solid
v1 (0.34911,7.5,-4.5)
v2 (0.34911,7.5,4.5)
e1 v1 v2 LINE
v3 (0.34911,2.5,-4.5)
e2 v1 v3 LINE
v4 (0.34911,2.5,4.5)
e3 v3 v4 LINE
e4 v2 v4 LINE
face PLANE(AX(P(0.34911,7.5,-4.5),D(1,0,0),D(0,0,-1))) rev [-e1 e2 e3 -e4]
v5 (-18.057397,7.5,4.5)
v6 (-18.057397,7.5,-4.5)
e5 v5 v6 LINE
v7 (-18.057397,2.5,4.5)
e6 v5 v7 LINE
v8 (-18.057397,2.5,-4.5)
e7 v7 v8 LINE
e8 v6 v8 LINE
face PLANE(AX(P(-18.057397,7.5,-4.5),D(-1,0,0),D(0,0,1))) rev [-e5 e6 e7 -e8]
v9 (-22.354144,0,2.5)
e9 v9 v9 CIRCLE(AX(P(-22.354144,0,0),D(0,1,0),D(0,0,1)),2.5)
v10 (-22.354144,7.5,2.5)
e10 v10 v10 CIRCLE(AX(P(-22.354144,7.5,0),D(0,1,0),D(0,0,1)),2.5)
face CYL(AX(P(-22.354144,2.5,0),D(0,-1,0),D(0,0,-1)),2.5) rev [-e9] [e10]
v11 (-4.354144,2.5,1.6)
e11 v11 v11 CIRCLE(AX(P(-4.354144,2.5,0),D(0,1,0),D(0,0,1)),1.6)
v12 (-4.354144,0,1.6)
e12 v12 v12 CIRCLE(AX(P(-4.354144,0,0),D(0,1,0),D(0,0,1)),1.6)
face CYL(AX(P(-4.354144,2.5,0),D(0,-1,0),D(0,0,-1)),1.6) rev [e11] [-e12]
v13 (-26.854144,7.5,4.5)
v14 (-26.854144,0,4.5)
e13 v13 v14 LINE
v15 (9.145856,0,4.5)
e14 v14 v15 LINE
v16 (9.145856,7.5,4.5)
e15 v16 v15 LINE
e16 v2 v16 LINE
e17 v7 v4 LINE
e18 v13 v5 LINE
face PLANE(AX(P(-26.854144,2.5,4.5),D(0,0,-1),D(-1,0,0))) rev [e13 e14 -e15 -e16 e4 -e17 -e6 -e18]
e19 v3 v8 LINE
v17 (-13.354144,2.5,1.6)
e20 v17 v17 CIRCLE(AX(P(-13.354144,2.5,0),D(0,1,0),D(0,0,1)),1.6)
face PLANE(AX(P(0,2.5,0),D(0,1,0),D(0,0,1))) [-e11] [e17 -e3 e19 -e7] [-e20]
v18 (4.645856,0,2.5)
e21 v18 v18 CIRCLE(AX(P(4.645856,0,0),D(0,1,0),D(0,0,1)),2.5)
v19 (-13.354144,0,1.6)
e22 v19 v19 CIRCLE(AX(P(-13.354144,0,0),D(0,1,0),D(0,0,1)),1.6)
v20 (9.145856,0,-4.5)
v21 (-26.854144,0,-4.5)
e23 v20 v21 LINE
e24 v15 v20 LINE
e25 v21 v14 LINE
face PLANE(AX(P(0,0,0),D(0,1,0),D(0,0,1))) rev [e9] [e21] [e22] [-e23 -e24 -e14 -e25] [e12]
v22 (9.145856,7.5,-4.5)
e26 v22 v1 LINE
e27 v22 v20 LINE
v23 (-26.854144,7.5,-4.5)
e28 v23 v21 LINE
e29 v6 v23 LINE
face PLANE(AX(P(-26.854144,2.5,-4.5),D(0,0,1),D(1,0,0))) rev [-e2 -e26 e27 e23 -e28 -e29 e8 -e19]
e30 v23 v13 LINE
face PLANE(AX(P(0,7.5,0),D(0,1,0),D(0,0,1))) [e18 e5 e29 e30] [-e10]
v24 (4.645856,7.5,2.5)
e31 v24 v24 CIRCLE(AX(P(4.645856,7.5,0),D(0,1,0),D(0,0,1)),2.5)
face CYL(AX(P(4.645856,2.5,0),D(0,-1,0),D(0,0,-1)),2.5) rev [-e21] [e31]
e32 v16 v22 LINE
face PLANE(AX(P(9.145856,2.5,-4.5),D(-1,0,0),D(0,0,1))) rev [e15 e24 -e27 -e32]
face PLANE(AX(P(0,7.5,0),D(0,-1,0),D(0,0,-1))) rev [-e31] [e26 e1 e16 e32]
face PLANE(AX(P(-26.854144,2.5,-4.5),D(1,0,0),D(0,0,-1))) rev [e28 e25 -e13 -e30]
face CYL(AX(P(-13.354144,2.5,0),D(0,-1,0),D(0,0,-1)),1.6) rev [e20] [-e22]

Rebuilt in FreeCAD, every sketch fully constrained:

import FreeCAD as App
import Part
import Sketcher
from FreeCAD import Vector
Q = App.Units.Quantity

doc = App.newDocument("Part")
body = doc.addObject("PartDesign::Body", "Body")

# Sketch on XZ plane
sketch1 = body.newObject("Sketcher::SketchObject", "Sketch")
sketch1.AttachmentSupport = (doc.getObject("XZ_Plane"), [""])
sketch1.MapMode = "FlatFace"
sketch1.addGeometry(Part.LineSegment(Vector(-26.9, -4.5, 0), Vector(-26.9, 4.5, 0)), False)
sketch1.addGeometry(Part.LineSegment(Vector(-26.9, 4.5, 0), Vector(9.1, 4.5, 0)), False)
sketch1.addGeometry(Part.LineSegment(Vector(9.1, 4.5, 0), Vector(9.1, -4.5, 0)), False)
sketch1.addGeometry(Part.LineSegment(Vector(9.1, -4.5, 0), Vector(-26.9, -4.5, 0)), False)
sketch1.addGeometry(Part.Circle(Vector(-22.4, 0, 0), Vector(0, 0, 1), 2.5), False)
sketch1.addGeometry(Part.Circle(Vector(-13.4, 0, 0), Vector(0, 0, 1), 1.6), False)
sketch1.addGeometry(Part.Circle(Vector(-4.4, 0, 0), Vector(0, 0, 1), 1.6), False)
sketch1.addGeometry(Part.Circle(Vector(4.6, 0, 0), Vector(0, 0, 1), 2.5), False)
sketch1.addConstraint(Sketcher.Constraint("Coincident", 0, 2, 1, 1))
sketch1.addConstraint(Sketcher.Constraint("Coincident", 1, 2, 2, 1))
sketch1.addConstraint(Sketcher.Constraint("Coincident", 2, 2, 3, 1))
sketch1.addConstraint(Sketcher.Constraint("Coincident", 3, 2, 0, 1))
sketch1.addConstraint(Sketcher.Constraint("Vertical", 0))
sketch1.addConstraint(Sketcher.Constraint("Horizontal", 1))
sketch1.addConstraint(Sketcher.Constraint("Vertical", 2))
sketch1.addConstraint(Sketcher.Constraint("Horizontal", 3))
sketch1.addConstraint(Sketcher.Constraint("Equal", 5, 6))
sketch1.addConstraint(Sketcher.Constraint("Equal", 4, 7))
sketch1.addConstraint(Sketcher.Constraint("PointOnObject", 4, 3, -1))
sketch1.addConstraint(Sketcher.Constraint("PointOnObject", 5, 3, -1))
sketch1.addConstraint(Sketcher.Constraint("PointOnObject", 6, 3, -1))
sketch1.addConstraint(Sketcher.Constraint("PointOnObject", 7, 3, -1))
sketch1.addConstraint(Sketcher.Constraint("Diameter", 4, Q("5 mm")))
sketch1.addConstraint(Sketcher.Constraint("Diameter", 5, Q("3.2 mm")))
sketch1.addConstraint(Sketcher.Constraint("DistanceX", 1, 1, 1, 2, Q("36 mm")))
sketch1.addConstraint(Sketcher.Constraint("DistanceY", 0, 1, 0, 2, Q("9 mm")))
sketch1.addConstraint(Sketcher.Constraint("DistanceX", 4, 3, 5, 3, Q("9 mm")))
sketch1.addConstraint(Sketcher.Constraint("DistanceX", 5, 3, 6, 3, Q("9 mm")))
sketch1.addConstraint(Sketcher.Constraint("DistanceX", 6, 3, 7, 3, Q("9 mm")))
sketch1.addConstraint(Sketcher.Constraint("DistanceY", -1, 1, 0, 2, Q("4.5 mm")))
sketch1.addConstraint(Sketcher.Constraint("DistanceX", 0, 2, 4, 3, Q("4.5 mm")))
sketch1.addConstraint(Sketcher.Constraint("DistanceX", 4, 3, -1, 1, Q("22.354144 mm")))
pad1 = body.newObject("PartDesign::Pad", "Pad")
pad1.Profile = sketch1
pad1.Length = 2.5
pad1.Reversed = True

# Sketch on XZ plane
sketch2 = body.newObject("Sketcher::SketchObject", "Sketch001")
sketch2.AttachmentSupport = (doc.getObject("XZ_Plane"), [""])
sketch2.MapMode = "FlatFace"
sketch2.AttachmentOffset = App.Placement(Vector(0, 0, -2.5), App.Rotation())
sketch2.addGeometry(Part.LineSegment(Vector(-26.9, -4.5, 0), Vector(-26.9, 4.5, 0)), False)
sketch2.addGeometry(Part.LineSegment(Vector(-26.9, 4.5, 0), Vector(-18.1, 4.5, 0)), False)
sketch2.addGeometry(Part.LineSegment(Vector(-18.1, 4.5, 0), Vector(-18.1, -4.5, 0)), False)
sketch2.addGeometry(Part.LineSegment(Vector(-18.1, -4.5, 0), Vector(-26.9, -4.5, 0)), False)
sketch2.addGeometry(Part.Circle(Vector(-22.4, 0, 0), Vector(0, 0, 1), 2.5), False)
sketch2.addGeometry(Part.LineSegment(Vector(0.3, -4.5, 0), Vector(0.3, 4.5, 0)), False)
sketch2.addGeometry(Part.LineSegment(Vector(0.3, 4.5, 0), Vector(9.1, 4.5, 0)), False)
sketch2.addGeometry(Part.LineSegment(Vector(9.1, 4.5, 0), Vector(9.1, -4.5, 0)), False)
sketch2.addGeometry(Part.LineSegment(Vector(9.1, -4.5, 0), Vector(0.3, -4.5, 0)), False)
sketch2.addGeometry(Part.Circle(Vector(4.6, 0, 0), Vector(0, 0, 1), 2.5), False)
sketch2.addConstraint(Sketcher.Constraint("Coincident", 0, 2, 1, 1))
sketch2.addConstraint(Sketcher.Constraint("Coincident", 1, 2, 2, 1))
sketch2.addConstraint(Sketcher.Constraint("Coincident", 2, 2, 3, 1))
sketch2.addConstraint(Sketcher.Constraint("Coincident", 3, 2, 0, 1))
sketch2.addConstraint(Sketcher.Constraint("Coincident", 5, 2, 6, 1))
sketch2.addConstraint(Sketcher.Constraint("Coincident", 6, 2, 7, 1))
sketch2.addConstraint(Sketcher.Constraint("Coincident", 7, 2, 8, 1))
sketch2.addConstraint(Sketcher.Constraint("Coincident", 8, 2, 5, 1))
sketch2.addConstraint(Sketcher.Constraint("Vertical", 0))
sketch2.addConstraint(Sketcher.Constraint("Horizontal", 1))
sketch2.addConstraint(Sketcher.Constraint("Vertical", 2))
sketch2.addConstraint(Sketcher.Constraint("Horizontal", 3))
sketch2.addConstraint(Sketcher.Constraint("Vertical", 5))
sketch2.addConstraint(Sketcher.Constraint("Horizontal", 6))
sketch2.addConstraint(Sketcher.Constraint("Vertical", 7))
sketch2.addConstraint(Sketcher.Constraint("Horizontal", 8))
sketch2.addConstraint(Sketcher.Constraint("Equal", 4, 9))
sketch2.addConstraint(Sketcher.Constraint("PointOnObject", 4, 3, -1))
sketch2.addConstraint(Sketcher.Constraint("PointOnObject", 9, 3, -1))
sketch2.addConstraint(Sketcher.Constraint("Horizontal", 1, 2, 5, 2))
sketch2.addConstraint(Sketcher.Constraint("Horizontal", 3, 2, 7, 2))
sketch2.addConstraint(Sketcher.Constraint("Equal", 3, 6))
sketch2.addConstraint(Sketcher.Constraint("Diameter", 4, Q("5 mm")))
sketch2.addConstraint(Sketcher.Constraint("DistanceY", 0, 1, 0, 2, Q("9 mm")))
sketch2.addConstraint(Sketcher.Constraint("DistanceX", 4, 3, 9, 3, Q("27 mm")))
sketch2.addConstraint(Sketcher.Constraint("DistanceY", -1, 1, 0, 2, Q("4.5 mm")))
sketch2.addConstraint(Sketcher.Constraint("DistanceX", 0, 2, 4, 3, Q("4.5 mm")))
sketch2.addConstraint(Sketcher.Constraint("DistanceX", 9, 3, 6, 2, Q("4.5 mm")))
sketch2.addConstraint(Sketcher.Constraint("DistanceX", 1, 1, 1, 2, Q("8.796747 mm")))
sketch2.addConstraint(Sketcher.Constraint("DistanceX", -1, 1, 5, 2, Q("0.34911 mm")))
pad2 = body.newObject("PartDesign::Pad", "Pad001")
pad2.Profile = sketch2
pad2.Length = 5
pad2.Reversed = True

doc.recompute()
